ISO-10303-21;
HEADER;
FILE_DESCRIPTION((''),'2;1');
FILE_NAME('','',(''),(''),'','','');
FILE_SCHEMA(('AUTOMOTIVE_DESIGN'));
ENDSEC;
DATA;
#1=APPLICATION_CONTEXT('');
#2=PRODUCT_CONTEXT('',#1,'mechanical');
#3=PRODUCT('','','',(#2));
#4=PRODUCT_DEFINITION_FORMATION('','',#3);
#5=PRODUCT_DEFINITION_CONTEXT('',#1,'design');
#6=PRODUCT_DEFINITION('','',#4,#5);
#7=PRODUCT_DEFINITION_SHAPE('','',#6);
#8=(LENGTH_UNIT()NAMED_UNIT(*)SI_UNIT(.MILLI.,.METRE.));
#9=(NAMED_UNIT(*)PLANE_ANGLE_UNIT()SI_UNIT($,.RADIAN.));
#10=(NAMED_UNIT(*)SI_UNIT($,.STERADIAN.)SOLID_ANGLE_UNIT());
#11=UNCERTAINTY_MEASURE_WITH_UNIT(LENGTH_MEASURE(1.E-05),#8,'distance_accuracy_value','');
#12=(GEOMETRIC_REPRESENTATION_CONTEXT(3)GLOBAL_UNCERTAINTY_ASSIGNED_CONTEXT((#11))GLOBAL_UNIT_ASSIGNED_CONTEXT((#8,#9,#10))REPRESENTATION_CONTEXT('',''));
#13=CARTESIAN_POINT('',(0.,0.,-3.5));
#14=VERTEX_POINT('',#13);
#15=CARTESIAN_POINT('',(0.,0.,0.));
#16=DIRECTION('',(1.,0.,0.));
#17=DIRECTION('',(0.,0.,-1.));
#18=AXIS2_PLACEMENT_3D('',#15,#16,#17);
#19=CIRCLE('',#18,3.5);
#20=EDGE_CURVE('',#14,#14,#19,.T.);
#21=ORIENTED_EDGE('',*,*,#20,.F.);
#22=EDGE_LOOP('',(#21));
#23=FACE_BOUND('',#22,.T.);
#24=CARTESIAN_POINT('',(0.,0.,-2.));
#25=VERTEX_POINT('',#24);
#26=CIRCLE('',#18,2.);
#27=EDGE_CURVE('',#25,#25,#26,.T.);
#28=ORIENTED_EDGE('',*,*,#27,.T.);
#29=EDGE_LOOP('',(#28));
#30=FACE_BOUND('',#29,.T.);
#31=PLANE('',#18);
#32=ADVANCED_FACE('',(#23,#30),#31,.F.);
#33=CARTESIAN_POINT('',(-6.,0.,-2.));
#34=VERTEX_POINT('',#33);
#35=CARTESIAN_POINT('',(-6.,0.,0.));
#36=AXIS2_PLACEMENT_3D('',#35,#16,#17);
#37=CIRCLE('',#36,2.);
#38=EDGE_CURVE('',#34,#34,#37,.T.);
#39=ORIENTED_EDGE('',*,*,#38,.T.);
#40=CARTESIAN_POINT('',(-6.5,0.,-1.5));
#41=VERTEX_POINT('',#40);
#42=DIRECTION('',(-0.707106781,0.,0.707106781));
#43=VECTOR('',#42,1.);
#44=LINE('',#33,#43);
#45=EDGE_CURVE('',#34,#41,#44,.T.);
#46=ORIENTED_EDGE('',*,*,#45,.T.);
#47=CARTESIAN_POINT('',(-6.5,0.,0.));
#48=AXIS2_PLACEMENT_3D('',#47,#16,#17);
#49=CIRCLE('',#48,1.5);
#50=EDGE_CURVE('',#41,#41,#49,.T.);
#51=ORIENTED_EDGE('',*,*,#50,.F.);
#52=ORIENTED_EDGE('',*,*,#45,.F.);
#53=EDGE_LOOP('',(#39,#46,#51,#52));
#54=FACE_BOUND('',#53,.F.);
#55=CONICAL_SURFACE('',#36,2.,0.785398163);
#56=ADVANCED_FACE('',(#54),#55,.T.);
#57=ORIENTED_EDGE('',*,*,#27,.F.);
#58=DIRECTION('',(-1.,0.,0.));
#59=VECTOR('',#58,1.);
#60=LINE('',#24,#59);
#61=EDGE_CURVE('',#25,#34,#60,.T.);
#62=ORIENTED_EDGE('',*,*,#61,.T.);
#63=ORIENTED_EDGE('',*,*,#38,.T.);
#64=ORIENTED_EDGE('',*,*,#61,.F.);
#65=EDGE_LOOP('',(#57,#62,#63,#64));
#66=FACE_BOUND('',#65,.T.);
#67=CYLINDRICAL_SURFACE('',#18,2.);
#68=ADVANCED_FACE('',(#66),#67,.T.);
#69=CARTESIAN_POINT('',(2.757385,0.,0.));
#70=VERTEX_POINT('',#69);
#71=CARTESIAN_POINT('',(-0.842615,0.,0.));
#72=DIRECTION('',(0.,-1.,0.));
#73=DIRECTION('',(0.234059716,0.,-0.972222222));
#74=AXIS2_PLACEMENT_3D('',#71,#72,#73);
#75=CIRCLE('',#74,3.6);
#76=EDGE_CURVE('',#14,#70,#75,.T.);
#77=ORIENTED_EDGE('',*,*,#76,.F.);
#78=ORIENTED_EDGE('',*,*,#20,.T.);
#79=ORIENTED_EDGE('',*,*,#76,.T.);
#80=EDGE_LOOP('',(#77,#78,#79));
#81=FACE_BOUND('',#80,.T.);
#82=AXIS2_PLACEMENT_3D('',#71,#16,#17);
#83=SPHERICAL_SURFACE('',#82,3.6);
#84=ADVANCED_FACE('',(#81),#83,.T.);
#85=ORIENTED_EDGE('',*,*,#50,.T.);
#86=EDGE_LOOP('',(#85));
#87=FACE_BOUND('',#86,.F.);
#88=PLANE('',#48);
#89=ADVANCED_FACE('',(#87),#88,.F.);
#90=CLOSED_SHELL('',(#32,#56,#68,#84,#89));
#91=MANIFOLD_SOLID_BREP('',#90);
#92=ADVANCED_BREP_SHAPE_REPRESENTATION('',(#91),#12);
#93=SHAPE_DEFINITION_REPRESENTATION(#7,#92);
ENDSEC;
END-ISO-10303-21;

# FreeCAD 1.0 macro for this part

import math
import FreeCAD as App
import Part
import Sketcher
Q = App.Units.Quantity


def edges_at(feature, points):
    """Names of the edges that pass closest to the given points."""
    edges = feature.Shape.Edges
    near = lambda p: min(range(len(edges)), key=lambda i: edges[i].distToShape(Part.Vertex(*p))[0])
    return sorted({f"Edge{near(p) + 1}" for p in points})

doc = App.newDocument("Part")
body = doc.addObject("PartDesign::Body", "Body")

# Sketch on YZ plane
sketch1 = body.newObject("Sketcher::SketchObject", "Sketch")
sketch1.AttachmentSupport = (doc.getObject("YZ_Plane"), [""])
sketch1.MapMode = "FlatFace"
sketch1.addGeometry(Part.Circle(App.Vector(0, 0, 0), App.Vector(0, 0, 1), 2), False)
sketch1.addConstraint([
    Sketcher.Constraint("Coincident", 0, 3, -1, 1),
    Sketcher.Constraint("Diameter", 0, Q("4 mm")),
])
pad1 = body.newObject("PartDesign::Pad", "Pad")
pad1.Profile = sketch1
pad1.Length = 6.5
pad1.Reversed = True

# Sketch on XZ plane
sketch2 = body.newObject("Sketcher::SketchObject", "Sketch001")
sketch2.AttachmentSupport = (doc.getObject("XZ_Plane"), [""])
sketch2.MapMode = "FlatFace"
sketch2.addGeometry([
    Part.LineSegment(App.Vector(0, 0, 0), App.Vector(2.8, 0, 0)),
    Part.ArcOfCircle(Part.Circle(App.Vector(-0.8, 0, 0), App.Vector(0, 0, 1), 3.6), math.radians(-76), math.radians(0)),
    Part.LineSegment(App.Vector(0, -3.5, 0), App.Vector(0, 0, 0)),
], False)
sketch2.addConstraint([
    Sketcher.Constraint("Coincident", 0, 2, 1, 2),
    Sketcher.Constraint("Coincident", 1, 1, 2, 1),
    Sketcher.Constraint("Coincident", 2, 2, 0, 1),
    Sketcher.Constraint("Horizontal", 0),
    Sketcher.Constraint("Vertical", 2),
    Sketcher.Constraint("Coincident", 2, 2, -1, 1),
    Sketcher.Constraint("PointOnObject", 1, 3, -1),
    Sketcher.Constraint("Radius", 1, Q("3.6 mm")),
    Sketcher.Constraint("DistanceY", 2, 1, 2, 2, Q("3.5 mm")),
])
revolution = body.newObject("PartDesign::Revolution", "Revolution")
revolution.Profile = sketch2
revolution.ReferenceAxis = (sketch2, ["H_Axis"])
revolution.Angle = 360
doc.recompute()

chamfer = body.newObject("PartDesign::Chamfer", "Chamfer")
chamfer.Base = (revolution, edges_at(revolution, [(-6.5, 0, 2)]))
chamfer.Size = 0.5

doc.recompute()
